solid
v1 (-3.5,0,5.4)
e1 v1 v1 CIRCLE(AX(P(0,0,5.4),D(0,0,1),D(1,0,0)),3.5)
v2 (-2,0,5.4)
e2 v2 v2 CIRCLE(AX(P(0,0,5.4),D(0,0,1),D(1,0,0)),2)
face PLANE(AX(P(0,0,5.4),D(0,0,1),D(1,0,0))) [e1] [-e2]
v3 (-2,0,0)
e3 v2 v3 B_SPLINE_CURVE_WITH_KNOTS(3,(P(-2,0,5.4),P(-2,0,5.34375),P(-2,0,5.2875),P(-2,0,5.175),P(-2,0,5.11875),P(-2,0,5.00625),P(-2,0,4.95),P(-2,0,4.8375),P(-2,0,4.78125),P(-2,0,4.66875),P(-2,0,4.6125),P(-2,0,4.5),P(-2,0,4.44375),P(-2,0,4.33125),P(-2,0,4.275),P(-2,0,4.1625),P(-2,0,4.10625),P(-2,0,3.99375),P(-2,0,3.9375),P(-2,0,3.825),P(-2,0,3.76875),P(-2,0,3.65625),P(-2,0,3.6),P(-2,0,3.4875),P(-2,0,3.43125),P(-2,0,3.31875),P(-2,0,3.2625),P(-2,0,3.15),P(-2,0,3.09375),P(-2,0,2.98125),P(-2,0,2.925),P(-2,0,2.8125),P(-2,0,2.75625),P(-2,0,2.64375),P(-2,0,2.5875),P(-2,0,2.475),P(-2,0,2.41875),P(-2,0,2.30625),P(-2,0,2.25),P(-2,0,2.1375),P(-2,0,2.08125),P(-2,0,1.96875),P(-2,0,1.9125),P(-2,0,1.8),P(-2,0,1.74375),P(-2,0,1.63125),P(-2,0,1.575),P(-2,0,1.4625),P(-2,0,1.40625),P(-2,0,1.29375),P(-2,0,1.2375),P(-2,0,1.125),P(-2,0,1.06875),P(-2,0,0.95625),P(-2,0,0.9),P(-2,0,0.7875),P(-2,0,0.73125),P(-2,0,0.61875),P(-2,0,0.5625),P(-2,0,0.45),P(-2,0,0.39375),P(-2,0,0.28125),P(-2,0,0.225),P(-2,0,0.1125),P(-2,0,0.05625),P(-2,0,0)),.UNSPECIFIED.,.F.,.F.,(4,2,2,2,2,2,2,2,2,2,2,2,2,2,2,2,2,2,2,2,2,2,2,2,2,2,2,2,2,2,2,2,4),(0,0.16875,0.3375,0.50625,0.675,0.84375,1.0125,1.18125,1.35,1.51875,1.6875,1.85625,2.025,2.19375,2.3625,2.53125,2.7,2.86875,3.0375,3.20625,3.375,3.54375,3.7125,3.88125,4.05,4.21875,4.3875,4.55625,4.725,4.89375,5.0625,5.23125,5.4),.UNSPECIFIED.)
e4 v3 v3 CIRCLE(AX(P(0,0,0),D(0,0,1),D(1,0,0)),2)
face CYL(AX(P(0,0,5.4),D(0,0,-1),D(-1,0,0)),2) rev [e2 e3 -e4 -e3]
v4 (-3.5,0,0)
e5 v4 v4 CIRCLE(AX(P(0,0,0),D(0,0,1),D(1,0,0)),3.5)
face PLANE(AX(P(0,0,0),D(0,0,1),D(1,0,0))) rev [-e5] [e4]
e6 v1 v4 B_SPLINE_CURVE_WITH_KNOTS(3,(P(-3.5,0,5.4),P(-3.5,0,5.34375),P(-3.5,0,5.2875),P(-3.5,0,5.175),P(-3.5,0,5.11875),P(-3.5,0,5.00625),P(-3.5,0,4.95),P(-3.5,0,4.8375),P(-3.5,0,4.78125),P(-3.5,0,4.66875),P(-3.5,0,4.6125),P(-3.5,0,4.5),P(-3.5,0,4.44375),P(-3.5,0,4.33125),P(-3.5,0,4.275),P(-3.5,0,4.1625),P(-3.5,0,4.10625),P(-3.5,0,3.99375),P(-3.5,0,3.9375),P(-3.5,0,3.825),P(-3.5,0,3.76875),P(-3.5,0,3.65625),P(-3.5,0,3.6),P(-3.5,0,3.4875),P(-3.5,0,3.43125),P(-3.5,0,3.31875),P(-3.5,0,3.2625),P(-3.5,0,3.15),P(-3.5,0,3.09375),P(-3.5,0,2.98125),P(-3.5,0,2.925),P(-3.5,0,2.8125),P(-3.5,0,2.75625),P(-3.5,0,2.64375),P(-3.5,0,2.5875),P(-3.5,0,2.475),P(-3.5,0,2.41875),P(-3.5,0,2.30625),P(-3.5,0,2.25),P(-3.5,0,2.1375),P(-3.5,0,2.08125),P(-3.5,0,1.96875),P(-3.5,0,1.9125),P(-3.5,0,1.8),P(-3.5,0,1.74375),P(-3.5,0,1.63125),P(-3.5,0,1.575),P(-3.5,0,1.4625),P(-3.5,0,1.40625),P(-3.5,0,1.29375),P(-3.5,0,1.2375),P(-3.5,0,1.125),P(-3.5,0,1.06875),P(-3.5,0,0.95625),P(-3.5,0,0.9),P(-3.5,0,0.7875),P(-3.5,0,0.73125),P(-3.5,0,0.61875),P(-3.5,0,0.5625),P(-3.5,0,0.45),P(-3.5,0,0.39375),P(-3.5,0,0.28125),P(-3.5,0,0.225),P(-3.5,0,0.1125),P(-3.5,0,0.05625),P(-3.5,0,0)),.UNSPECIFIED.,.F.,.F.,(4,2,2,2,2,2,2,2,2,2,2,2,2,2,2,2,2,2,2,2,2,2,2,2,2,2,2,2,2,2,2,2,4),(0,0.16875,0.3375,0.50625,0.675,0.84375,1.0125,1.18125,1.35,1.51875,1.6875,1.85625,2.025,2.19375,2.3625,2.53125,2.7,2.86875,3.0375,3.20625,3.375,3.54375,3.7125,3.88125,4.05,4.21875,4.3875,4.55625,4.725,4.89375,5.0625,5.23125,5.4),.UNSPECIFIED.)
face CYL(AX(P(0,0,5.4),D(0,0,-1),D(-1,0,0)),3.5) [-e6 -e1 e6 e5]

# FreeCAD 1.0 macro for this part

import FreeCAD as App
import Part
import Sketcher
from FreeCAD import Vector

doc = App.newDocument("Part")
body = doc.addObject("PartDesign::Body", "Body")

# Sketch on XY plane
sketch1 = doc.addObject("Sketcher::SketchObject", "Sketch")
body.addObject(sketch1)
sketch1.AttachmentSupport = (doc.XY_Plane, [""])
sketch1.MapMode = "FlatFace"
sketch1.addGeometry([
    Part.Circle(Vector(0, 0, 0), Vector(0, 0, 1), 3.5),
    Part.Circle(Vector(0, 0, 0), Vector(0, 0, 1), 2),
], False)
sketch1.addConstraint([
    Sketcher.Constraint("Coincident", 0, 3, -1, 1),
    Sketcher.Constraint("Coincident", 1, 3, -1, 1),
    Sketcher.Constraint("Diameter", 0, 7.0),
    Sketcher.Constraint("Diameter", 1, 4.0),
])
pad1 = doc.addObject("PartDesign::Pad", "Pad")
body.addObject(pad1)
pad1.Profile = sketch1
pad1.Length = 5.4

doc.recompute()
